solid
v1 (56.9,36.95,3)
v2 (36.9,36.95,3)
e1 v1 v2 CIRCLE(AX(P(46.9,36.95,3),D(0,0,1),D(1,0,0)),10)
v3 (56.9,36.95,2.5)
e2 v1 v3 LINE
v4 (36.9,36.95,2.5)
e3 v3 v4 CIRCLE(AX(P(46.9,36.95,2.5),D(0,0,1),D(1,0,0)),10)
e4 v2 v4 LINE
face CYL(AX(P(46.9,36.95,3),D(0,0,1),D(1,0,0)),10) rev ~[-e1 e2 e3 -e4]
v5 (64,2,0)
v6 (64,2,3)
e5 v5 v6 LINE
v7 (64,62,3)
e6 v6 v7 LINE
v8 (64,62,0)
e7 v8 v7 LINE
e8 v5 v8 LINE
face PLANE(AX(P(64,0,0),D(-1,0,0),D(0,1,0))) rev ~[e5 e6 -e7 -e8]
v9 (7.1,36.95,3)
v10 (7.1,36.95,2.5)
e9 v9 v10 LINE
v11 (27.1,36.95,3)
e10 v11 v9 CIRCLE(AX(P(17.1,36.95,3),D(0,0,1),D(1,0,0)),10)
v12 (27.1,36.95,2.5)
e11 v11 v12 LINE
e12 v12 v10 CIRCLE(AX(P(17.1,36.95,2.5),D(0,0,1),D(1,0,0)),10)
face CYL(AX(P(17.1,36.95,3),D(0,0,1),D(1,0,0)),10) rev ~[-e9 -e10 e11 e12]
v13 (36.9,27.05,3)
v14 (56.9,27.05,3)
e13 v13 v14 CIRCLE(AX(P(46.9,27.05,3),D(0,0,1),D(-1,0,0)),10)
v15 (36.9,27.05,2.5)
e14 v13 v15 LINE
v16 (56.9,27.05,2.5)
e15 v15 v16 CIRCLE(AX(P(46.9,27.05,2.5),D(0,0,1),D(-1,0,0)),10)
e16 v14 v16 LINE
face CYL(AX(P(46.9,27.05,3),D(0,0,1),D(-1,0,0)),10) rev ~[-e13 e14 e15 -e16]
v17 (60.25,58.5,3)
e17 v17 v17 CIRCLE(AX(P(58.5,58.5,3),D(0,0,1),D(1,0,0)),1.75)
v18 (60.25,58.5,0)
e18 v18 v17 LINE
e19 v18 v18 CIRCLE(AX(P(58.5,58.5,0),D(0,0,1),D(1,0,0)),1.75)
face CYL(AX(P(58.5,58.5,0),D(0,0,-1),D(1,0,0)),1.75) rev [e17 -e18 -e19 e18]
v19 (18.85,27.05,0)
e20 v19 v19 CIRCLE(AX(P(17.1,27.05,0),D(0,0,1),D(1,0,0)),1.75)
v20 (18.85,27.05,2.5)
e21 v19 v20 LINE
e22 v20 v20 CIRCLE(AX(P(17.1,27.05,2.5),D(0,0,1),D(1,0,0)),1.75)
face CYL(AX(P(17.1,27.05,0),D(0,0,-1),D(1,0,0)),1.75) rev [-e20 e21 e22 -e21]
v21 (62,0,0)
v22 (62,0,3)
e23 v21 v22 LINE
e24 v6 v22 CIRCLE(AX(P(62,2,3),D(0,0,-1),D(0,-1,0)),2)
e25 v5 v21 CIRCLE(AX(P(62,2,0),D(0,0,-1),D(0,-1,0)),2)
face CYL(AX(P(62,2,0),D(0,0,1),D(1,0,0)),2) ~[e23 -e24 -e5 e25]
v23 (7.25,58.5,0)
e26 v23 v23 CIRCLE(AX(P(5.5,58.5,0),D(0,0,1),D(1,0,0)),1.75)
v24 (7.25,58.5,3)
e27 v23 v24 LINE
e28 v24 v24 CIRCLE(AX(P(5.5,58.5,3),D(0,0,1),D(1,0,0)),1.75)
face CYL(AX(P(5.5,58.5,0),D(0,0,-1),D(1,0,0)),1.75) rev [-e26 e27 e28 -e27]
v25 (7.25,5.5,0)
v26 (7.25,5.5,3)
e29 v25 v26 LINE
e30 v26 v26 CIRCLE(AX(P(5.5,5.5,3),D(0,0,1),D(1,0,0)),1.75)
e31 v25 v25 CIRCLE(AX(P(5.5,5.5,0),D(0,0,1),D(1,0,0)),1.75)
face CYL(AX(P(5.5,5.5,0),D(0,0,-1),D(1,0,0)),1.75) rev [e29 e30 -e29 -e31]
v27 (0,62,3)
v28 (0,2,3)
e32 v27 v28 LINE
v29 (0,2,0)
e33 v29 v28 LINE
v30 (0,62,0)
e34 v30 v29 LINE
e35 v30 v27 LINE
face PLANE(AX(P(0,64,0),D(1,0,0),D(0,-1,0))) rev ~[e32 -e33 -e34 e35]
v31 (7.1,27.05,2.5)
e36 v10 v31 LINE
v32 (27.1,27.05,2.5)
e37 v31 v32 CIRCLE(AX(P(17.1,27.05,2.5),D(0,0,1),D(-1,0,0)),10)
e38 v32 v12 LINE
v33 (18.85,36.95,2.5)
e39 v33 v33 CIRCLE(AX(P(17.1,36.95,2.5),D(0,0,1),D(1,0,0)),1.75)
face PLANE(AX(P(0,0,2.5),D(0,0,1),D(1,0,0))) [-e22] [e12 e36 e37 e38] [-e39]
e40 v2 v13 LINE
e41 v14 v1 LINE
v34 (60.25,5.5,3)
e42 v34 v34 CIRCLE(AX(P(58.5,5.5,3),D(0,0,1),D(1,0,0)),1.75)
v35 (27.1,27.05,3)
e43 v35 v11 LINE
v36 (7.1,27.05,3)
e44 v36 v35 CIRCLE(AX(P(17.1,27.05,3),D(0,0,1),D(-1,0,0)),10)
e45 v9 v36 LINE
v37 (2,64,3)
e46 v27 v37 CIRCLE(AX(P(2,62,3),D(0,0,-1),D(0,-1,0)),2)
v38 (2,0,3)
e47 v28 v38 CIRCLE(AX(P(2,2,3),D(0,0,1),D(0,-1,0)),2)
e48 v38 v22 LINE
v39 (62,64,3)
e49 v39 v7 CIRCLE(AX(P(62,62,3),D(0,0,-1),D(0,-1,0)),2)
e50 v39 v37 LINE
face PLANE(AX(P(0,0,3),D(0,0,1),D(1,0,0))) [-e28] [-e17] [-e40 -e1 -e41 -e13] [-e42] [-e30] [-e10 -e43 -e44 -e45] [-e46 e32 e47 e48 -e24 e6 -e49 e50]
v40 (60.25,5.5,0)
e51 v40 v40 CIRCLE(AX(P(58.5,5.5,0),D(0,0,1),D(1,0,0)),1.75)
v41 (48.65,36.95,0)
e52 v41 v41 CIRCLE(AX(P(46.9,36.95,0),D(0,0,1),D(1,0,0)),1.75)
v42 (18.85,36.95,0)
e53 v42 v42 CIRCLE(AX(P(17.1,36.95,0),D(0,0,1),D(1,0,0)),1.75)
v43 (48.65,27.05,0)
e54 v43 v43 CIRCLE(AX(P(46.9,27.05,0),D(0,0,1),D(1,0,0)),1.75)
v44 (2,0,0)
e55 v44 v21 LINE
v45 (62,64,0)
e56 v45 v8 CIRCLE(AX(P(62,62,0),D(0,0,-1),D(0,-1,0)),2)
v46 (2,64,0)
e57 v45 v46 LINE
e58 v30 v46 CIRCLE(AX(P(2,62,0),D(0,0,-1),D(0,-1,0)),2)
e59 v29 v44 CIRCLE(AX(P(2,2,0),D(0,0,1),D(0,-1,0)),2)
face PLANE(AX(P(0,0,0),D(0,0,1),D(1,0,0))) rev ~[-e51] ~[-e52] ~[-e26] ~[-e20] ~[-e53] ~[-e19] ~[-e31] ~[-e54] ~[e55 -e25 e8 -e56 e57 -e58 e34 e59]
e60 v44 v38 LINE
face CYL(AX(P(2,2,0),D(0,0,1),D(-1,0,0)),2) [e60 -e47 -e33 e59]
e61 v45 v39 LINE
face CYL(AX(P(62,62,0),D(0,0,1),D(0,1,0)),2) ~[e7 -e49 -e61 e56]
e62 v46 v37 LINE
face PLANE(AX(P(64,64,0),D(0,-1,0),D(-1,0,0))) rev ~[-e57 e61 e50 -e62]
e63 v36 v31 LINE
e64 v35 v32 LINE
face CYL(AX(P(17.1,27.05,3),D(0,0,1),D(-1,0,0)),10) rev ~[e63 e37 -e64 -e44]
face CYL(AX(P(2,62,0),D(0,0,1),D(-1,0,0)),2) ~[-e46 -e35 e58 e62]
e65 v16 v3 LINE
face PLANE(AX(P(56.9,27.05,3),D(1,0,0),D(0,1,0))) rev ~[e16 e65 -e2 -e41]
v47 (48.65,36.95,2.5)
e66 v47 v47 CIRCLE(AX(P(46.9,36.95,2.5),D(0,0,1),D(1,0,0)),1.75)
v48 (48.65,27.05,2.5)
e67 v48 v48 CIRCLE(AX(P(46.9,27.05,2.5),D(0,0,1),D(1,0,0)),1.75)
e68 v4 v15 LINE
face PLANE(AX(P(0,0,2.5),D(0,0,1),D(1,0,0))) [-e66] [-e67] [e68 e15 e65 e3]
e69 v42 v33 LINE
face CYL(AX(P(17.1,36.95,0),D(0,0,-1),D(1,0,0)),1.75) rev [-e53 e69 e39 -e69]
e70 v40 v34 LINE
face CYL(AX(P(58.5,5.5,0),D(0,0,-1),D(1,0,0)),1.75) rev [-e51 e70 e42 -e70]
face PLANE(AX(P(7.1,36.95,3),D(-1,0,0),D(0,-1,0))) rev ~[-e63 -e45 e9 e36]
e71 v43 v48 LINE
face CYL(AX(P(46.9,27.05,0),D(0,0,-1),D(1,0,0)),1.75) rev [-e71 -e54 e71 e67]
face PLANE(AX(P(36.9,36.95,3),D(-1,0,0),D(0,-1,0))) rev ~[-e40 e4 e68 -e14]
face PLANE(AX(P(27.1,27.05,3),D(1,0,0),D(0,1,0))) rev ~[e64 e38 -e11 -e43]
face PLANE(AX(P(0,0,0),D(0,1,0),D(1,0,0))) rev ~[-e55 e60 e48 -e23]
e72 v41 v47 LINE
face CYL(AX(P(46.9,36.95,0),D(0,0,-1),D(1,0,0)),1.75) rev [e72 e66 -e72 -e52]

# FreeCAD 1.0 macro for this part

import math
import FreeCAD as App
import Part
import Sketcher

V = App.Vector
Q = App.Units.Quantity


def edges_at(feature, points):
    """Names of the edges that pass closest to the given points."""
    edges = feature.Shape.Edges
    near = lambda p: min(range(len(edges)), key=lambda i: edges[i].distToShape(Part.Vertex(*p))[0])
    return sorted({f"Edge{near(p) + 1}" for p in points})


def add_polygon(sketch, points):
    """Adds a closed chain of lines whose ends are joined by coincident constraints."""
    first, n = sketch.GeometryCount, len(points)
    for a, b in zip(points, points[1:] + points[:1]):
        sketch.addGeometry(Part.LineSegment(App.Vector(*a, 0), App.Vector(*b, 0)), False)
    for i in range(n):
        sketch.addConstraint(Sketcher.Constraint("Coincident", first + i, 2, first + (i + 1) % n, 1))

doc = App.newDocument("Part")
body = doc.addObject("PartDesign::Body", "Body")

# Sketch on XY plane
sketch1 = body.newObject("Sketcher::SketchObject", "Sketch")
sketch1.AttachmentSupport = (doc.getObject("XY_Plane"), [""])
sketch1.MapMode = "FlatFace"
add_polygon(sketch1, [(0, 64), (0, 0), (64, 0), (64, 64)])  # lines 0-3
sketch1.addGeometry(Part.Circle(V(5.5, 5.5, 0), V(0, 0, 1), 1.8), False)  # 4
sketch1.addGeometry(Part.Circle(V(17.1, 27.1, 0), V(0, 0, 1), 1.8), False)  # 5
sketch1.addGeometry(Part.Circle(V(58.5, 5.5, 0), V(0, 0, 1), 1.8), False)  # 6
sketch1.addGeometry(Part.Circle(V(46.9, 27.1, 0), V(0, 0, 1), 1.8), False)  # 7
sketch1.addGeometry(Part.Circle(V(17.1, 37, 0), V(0, 0, 1), 1.8), False)  # 8
sketch1.addGeometry(Part.Circle(V(5.5, 58.5, 0), V(0, 0, 1), 1.8), False)  # 9
sketch1.addGeometry(Part.Circle(V(46.9, 37, 0), V(0, 0, 1), 1.8), False)  # 10
sketch1.addGeometry(Part.Circle(V(58.5, 58.5, 0), V(0, 0, 1), 1.8), False)  # 11
sketch1.addConstraint([
    Sketcher.Constraint("Vertical", 0),
    Sketcher.Constraint("Horizontal", 1),
    Sketcher.Constraint("Vertical", 2),
    Sketcher.Constraint("Horizontal", 3),
    Sketcher.Constraint("Coincident", 0, 2, -1, 1),
    Sketcher.Constraint("Equal", 4, 5),
    Sketcher.Constraint("Equal", 5, 6),
    Sketcher.Constraint("Equal", 6, 7),
    Sketcher.Constraint("Equal", 7, 8),
    Sketcher.Constraint("Equal", 8, 9),
    Sketcher.Constraint("Equal", 9, 10),
    Sketcher.Constraint("Equal", 10, 11),
    Sketcher.Constraint("Horizontal", 4, 3, 6, 3),
    Sketcher.Constraint("Horizontal", 5, 3, 7, 3),
    Sketcher.Constraint("Horizontal", 8, 3, 10, 3),
    Sketcher.Constraint("Horizontal", 9, 3, 11, 3),
    Sketcher.Constraint("Vertical", 5, 3, 8, 3),
    Sketcher.Constraint("Vertical", 4, 3, 9, 3),
    Sketcher.Constraint("Vertical", 7, 3, 10, 3),
    Sketcher.Constraint("Vertical", 6, 3, 11, 3),
    Sketcher.Constraint("Equal", 3, 0),
    Sketcher.Constraint("Diameter", 4, Q("3.5 mm")),
    Sketcher.Constraint("DistanceX", 1, 1, 1, 2, Q("64 mm")),
    Sketcher.Constraint("DistanceX", 4, 3, 6, 3, Q("53 mm")),
    Sketcher.Constraint("DistanceY", 4, 3, 9, 3, Q("53 mm")),
    Sketcher.Constraint("DistanceX", 5, 3, 7, 3, Q("29.8 mm")),
    Sketcher.Constraint("DistanceY", 5, 3, 8, 3, Q("9.9 mm")),
    Sketcher.Constraint("DistanceX", -1, 1, 4, 3, Q("5.5 mm")),
    Sketcher.Constraint("DistanceY", -1, 1, 4, 3, Q("5.5 mm")),
    Sketcher.Constraint("DistanceX", -1, 1, 5, 3, Q("17.1 mm")),
    Sketcher.Constraint("DistanceY", -1, 1, 5, 3, Q("27.05 mm")),
])
pad1 = body.newObject("PartDesign::Pad", "Pad")
pad1.Profile = sketch1
pad1.Length = 3
doc.recompute()

fillet = body.newObject("PartDesign::Fillet", "Fillet")
fillet.Base = (pad1, edges_at(pad1, [
    (0, 0, 1.5),
    (64, 0, 1.5),
    (64, 64, 1.5),
    (0, 64, 1.5),
]))
fillet.Radius = 2

# Sketch on XY plane
sketch2 = body.newObject("Sketcher::SketchObject", "Sketch001")
sketch2.AttachmentSupport = (doc.getObject("XY_Plane"), [""])
sketch2.MapMode = "FlatFace"
sketch2.AttachmentOffset = App.Placement(V(0, 0, 3), App.Rotation())
sketch2.addGeometry([
    Part.ArcOfCircle(Part.Circle(V(17.1, 37, 0), V(0, 0, 1), 10), math.radians(0), math.radians(180)),  # 0
    Part.LineSegment(V(7.1, 37, 0), V(7.1, 27.1, 0)),  # 1
    Part.ArcOfCircle(Part.Circle(V(17.1, 27.1, 0), V(0, 0, 1), 10), math.radians(180), math.radians(360)),  # 2
    Part.LineSegment(V(27.1, 27.1, 0), V(27.1, 37, 0)),  # 3
    Part.Circle(V(17.1, 27.1, 0), V(0, 0, 1), 1.8),  # 4
    Part.Circle(V(17.1, 37, 0), V(0, 0, 1), 1.8),  # 5
    Part.ArcOfCircle(Part.Circle(V(46.9, 37, 0), V(0, 0, 1), 10), math.radians(0), math.radians(180)),  # 6
    Part.LineSegment(V(36.9, 37, 0), V(36.9, 27.1, 0)),  # 7
    Part.ArcOfCircle(Part.Circle(V(46.9, 27.1, 0), V(0, 0, 1), 10), math.radians(180), math.radians(360)),  # 8
    Part.LineSegment(V(56.9, 27.1, 0), V(56.9, 37, 0)),  # 9
    Part.Circle(V(46.9, 27.1, 0), V(0, 0, 1), 1.8),  # 10
    Part.Circle(V(46.9, 37, 0), V(0, 0, 1), 1.8),  # 11
], False)
sketch2.addConstraint([
    Sketcher.Constraint("Tangent", 0, 2, 1, 1),
    Sketcher.Constraint("Tangent", 1, 2, 2, 1),
    Sketcher.Constraint("Tangent", 2, 2, 3, 1),
    Sketcher.Constraint("Tangent", 3, 2, 0, 1),
    Sketcher.Constraint("Tangent", 6, 2, 7, 1),
    Sketcher.Constraint("Tangent", 7, 2, 8, 1),
    Sketcher.Constraint("Tangent", 8, 2, 9, 1),
    Sketcher.Constraint("Tangent", 9, 2, 6, 1),
    Sketcher.Constraint("Vertical", 1),
    Sketcher.Constraint("Vertical", 3),
    Sketcher.Constraint("Vertical", 7),
    Sketcher.Constraint("Vertical", 9),
    Sketcher.Constraint("Coincident", 4, 3, 2, 3),
    Sketcher.Constraint("Coincident", 5, 3, 0, 3),
    Sketcher.Constraint("Coincident", 10, 3, 8, 3),
    Sketcher.Constraint("Coincident", 11, 3, 6, 3),
    Sketcher.Constraint("Equal", 4, 5),
    Sketcher.Constraint("Equal", 2, 6),
    Sketcher.Constraint("Equal", 5, 10),
    Sketcher.Constraint("Equal", 10, 11),
    Sketcher.Constraint("Horizontal", 5, 3, 6, 3),
    Sketcher.Constraint("Horizontal", 4, 3, 8, 3),
    Sketcher.Constraint("Radius", 0, Q("10 mm")),
    Sketcher.Constraint("Diameter", 4, Q("3.5 mm")),
    Sketcher.Constraint("DistanceY", 1, 2, 1, 1, Q("9.9 mm")),
    Sketcher.Constraint("DistanceX", -1, 1, 0, 3, Q("17.1 mm")),
    Sketcher.Constraint("DistanceX", -1, 1, 6, 3, Q("46.9 mm")),
    Sketcher.Constraint("DistanceY", -1, 1, 0, 3, Q("36.95 mm")),
])
pocket1 = body.newObject("PartDesign::Pocket", "Pocket")
pocket1.Profile = sketch2
pocket1.Length = 0.5

doc.recompute()
